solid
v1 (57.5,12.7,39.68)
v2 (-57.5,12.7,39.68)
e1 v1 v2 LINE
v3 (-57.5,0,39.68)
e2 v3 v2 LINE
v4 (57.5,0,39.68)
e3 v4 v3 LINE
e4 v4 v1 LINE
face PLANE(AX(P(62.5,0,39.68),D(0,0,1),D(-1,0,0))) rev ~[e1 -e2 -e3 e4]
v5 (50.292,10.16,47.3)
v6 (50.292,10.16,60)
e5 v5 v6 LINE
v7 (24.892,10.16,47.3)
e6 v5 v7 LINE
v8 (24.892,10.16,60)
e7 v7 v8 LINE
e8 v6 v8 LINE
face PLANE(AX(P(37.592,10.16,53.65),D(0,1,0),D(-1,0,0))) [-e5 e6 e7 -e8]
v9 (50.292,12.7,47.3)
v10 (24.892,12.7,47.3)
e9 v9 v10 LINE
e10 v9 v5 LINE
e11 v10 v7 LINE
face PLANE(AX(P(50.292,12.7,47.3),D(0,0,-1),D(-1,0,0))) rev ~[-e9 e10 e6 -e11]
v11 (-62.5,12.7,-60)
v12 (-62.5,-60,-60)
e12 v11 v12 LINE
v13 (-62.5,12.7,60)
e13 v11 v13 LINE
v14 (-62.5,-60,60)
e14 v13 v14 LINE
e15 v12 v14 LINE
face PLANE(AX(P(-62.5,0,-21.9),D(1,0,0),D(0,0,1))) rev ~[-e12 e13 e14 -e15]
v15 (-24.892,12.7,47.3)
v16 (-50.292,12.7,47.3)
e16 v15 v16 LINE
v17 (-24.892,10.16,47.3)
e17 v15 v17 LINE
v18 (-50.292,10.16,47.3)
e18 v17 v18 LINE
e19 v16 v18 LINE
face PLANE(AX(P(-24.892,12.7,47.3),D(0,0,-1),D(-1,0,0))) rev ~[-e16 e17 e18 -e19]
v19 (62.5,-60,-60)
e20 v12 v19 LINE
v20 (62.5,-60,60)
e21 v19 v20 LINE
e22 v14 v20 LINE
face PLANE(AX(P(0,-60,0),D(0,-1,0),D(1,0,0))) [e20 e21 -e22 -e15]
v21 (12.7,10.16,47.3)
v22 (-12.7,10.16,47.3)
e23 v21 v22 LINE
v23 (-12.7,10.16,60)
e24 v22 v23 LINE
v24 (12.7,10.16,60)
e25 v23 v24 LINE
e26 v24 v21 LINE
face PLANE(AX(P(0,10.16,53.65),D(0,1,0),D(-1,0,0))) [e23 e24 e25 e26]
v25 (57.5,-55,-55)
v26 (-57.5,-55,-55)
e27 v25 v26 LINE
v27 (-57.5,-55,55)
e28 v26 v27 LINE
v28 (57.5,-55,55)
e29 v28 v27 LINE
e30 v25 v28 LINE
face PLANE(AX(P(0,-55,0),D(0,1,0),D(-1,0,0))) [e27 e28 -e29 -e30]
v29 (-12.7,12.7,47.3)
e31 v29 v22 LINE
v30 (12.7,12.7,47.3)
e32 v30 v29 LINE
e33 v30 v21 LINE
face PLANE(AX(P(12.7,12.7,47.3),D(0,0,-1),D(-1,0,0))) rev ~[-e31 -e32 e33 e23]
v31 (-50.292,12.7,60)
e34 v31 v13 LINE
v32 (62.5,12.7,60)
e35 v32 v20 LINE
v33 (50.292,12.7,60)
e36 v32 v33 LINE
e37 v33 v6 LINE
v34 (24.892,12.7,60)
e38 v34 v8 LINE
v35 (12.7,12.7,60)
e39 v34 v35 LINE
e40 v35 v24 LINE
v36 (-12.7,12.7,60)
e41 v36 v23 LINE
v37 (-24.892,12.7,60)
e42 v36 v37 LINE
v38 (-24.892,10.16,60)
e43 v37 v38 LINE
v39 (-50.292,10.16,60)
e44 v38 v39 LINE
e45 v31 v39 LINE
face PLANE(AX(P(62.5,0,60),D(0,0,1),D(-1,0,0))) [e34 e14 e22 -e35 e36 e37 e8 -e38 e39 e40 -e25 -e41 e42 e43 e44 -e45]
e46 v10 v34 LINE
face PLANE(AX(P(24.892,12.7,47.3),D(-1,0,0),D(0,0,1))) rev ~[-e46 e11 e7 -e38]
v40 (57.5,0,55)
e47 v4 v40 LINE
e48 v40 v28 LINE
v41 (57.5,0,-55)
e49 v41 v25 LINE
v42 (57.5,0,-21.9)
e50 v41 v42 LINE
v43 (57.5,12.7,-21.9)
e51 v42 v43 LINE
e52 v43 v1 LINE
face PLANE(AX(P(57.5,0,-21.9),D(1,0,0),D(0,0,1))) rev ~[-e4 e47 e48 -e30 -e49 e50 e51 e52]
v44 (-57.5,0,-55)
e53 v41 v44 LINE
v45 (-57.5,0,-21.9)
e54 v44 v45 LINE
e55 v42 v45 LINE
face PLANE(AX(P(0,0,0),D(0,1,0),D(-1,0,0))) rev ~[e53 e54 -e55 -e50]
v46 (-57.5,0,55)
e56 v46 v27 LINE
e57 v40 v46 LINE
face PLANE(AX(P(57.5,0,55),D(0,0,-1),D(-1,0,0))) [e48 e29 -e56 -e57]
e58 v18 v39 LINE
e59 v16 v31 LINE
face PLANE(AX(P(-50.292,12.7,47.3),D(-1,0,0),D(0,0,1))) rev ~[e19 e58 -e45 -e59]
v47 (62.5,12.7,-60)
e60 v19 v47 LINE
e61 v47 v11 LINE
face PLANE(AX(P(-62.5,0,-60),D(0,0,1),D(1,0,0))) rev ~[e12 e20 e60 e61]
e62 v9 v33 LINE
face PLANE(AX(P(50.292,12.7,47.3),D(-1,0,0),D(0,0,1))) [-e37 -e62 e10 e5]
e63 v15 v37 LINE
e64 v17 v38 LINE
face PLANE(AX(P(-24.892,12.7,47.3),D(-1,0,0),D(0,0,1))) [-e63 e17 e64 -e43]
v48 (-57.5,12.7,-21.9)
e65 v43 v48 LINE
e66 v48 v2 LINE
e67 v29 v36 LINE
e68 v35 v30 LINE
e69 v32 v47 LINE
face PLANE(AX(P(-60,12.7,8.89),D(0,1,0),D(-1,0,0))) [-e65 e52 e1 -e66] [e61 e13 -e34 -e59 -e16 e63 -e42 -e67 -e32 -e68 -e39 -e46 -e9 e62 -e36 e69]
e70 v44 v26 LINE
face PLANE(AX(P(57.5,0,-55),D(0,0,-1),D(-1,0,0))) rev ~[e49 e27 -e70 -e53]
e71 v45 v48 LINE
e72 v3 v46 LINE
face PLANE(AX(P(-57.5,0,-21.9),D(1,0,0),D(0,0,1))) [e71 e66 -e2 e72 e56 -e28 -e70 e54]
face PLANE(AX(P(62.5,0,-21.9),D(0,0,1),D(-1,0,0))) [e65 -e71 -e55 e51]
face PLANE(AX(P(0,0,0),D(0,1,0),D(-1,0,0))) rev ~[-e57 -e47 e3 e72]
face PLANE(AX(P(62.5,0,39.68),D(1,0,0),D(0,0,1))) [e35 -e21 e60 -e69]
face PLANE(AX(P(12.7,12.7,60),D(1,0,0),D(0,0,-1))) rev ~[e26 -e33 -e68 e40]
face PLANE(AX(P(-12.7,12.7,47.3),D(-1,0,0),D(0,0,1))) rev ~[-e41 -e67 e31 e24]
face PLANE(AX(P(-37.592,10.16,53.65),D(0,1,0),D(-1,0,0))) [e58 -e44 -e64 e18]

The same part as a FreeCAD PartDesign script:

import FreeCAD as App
import Part
import Sketcher

doc = App.newDocument("Part")
body = doc.addObject("PartDesign::Body", "Body")

# Sketch on XZ plane
sketch1 = body.newObject("Sketcher::SketchObject", "Sketch")
sketch1.AttachmentSupport = (doc.getObject("XZ_Plane"), [""])
sketch1.MapMode = "FlatFace"
sketch1.addGeometry([
    Part.LineSegment(App.Vector(-62, 60, 0), App.Vector(-62, -60, 0)),
    Part.LineSegment(App.Vector(-62, -60, 0), App.Vector(62, -60, 0)),
    Part.LineSegment(App.Vector(62, -60, 0), App.Vector(62, 60, 0)),
    Part.LineSegment(App.Vector(62, 60, 0), App.Vector(-62, 60, 0)),
], False)
sketch1.addConstraint([
    Sketcher.Constraint("Coincident", 0, 2, 1, 1),
    Sketcher.Constraint("Coincident", 1, 2, 2, 1),
    Sketcher.Constraint("Coincident", 2, 2, 3, 1),
    Sketcher.Constraint("Coincident", 3, 2, 0, 1),
    Sketcher.Constraint("Vertical", 0),
    Sketcher.Constraint("Horizontal", 1),
    Sketcher.Constraint("Vertical", 2),
    Sketcher.Constraint("Horizontal", 3),
    Sketcher.Constraint("Symmetric", 0, 2, 2, 2, -1, 1),
    Sketcher.Constraint("DistanceX", 1, 1, 1, 2, 125.0),
    Sketcher.Constraint("DistanceY", 0, 2, 0, 1, 120.0),
])
pad1 = body.newObject("PartDesign::Pad", "Pad")
pad1.Profile = sketch1
pad1.Length = 60

# Sketch on XZ plane
sketch2 = body.newObject("Sketcher::SketchObject", "Sketch001")
sketch2.AttachmentSupport = (doc.getObject("XZ_Plane"), [""])
sketch2.MapMode = "FlatFace"
sketch2.addGeometry([
    Part.LineSegment(App.Vector(62, 60, 0), App.Vector(62, 40, 0)),  # 0
    Part.LineSegment(App.Vector(62, 40, 0), App.Vector(-62, 40, 0)),  # 1
    Part.LineSegment(App.Vector(-62, 40, 0), App.Vector(-62, 60, 0)),  # 2
    Part.LineSegment(App.Vector(-62, 60, 0), App.Vector(62, 60, 0)),  # 3
    Part.LineSegment(App.Vector(62, -22, 0), App.Vector(62, -60, 0)),  # 4
    Part.LineSegment(App.Vector(62, -60, 0), App.Vector(-62, -60, 0)),  # 5
    Part.LineSegment(App.Vector(-62, -60, 0), App.Vector(-62, -22, 0)),  # 6
    Part.LineSegment(App.Vector(-62, -22, 0), App.Vector(62, -22, 0)),  # 7
], False)
sketch2.addConstraint([
    Sketcher.Constraint("Coincident", 0, 2, 1, 1),
    Sketcher.Constraint("Coincident", 1, 2, 2, 1),
    Sketcher.Constraint("Coincident", 2, 2, 3, 1),
    Sketcher.Constraint("Coincident", 3, 2, 0, 1),
    Sketcher.Constraint("Coincident", 4, 2, 5, 1),
    Sketcher.Constraint("Coincident", 5, 2, 6, 1),
    Sketcher.Constraint("Coincident", 6, 2, 7, 1),
    Sketcher.Constraint("Coincident", 7, 2, 4, 1),
    Sketcher.Constraint("Vertical", 0),
    Sketcher.Constraint("Horizontal", 1),
    Sketcher.Constraint("Vertical", 2),
    Sketcher.Constraint("Horizontal", 3),
    Sketcher.Constraint("Vertical", 4),
    Sketcher.Constraint("Horizontal", 5),
    Sketcher.Constraint("Vertical", 6),
    Sketcher.Constraint("Horizontal", 7),
    Sketcher.Constraint("Symmetric", 2, 2, 4, 2, -1, 1),
    Sketcher.Constraint("Vertical", 3, 2, 4, 2),
    Sketcher.Constraint("Vertical", 2, 2, 5, 2),
    Sketcher.Constraint("DistanceX", 1, 2, 1, 1, 125.0),
    Sketcher.Constraint("DistanceY", 4, 2, 4, 1, 38.1),
    Sketcher.Constraint("DistanceY", -1, 1, 2, 2, 60.0),
    Sketcher.Constraint("DistanceY", 0, 2, 0, 1, 20.32),
])
pad2 = body.newObject("PartDesign::Pad", "Pad001")
pad2.Profile = sketch2
pad2.Length = 12.7
pad2.Reversed = True

# Sketch on XZ plane
sketch3 = body.newObject("Sketcher::SketchObject", "Sketch002")
sketch3.AttachmentSupport = (doc.getObject("XZ_Plane"), [""])
sketch3.MapMode = "FlatFace"
sketch3.addGeometry([
    Part.LineSegment(App.Vector(58, 55, 0), App.Vector(58, -55, 0)),
    Part.LineSegment(App.Vector(58, -55, 0), App.Vector(-58, -55, 0)),
    Part.LineSegment(App.Vector(-58, -55, 0), App.Vector(-58, 55, 0)),
    Part.LineSegment(App.Vector(-58, 55, 0), App.Vector(58, 55, 0)),
], False)
sketch3.addConstraint([
    Sketcher.Constraint("Coincident", 0, 2, 1, 1),
    Sketcher.Constraint("Coincident", 1, 2, 2, 1),
    Sketcher.Constraint("Coincident", 2, 2, 3, 1),
    Sketcher.Constraint("Coincident", 3, 2, 0, 1),
    Sketcher.Constraint("Vertical", 0),
    Sketcher.Constraint("Horizontal", 1),
    Sketcher.Constraint("Vertical", 2),
    Sketcher.Constraint("Horizontal", 3),
    Sketcher.Constraint("Symmetric", 0, 2, 2, 2, -1, 1),
    Sketcher.Constraint("DistanceX", 1, 2, 1, 1, 115.0),
    Sketcher.Constraint("DistanceY", 0, 2, 0, 1, 110.0),
])
pocket1 = body.newObject("PartDesign::Pocket", "Pocket")
pocket1.Profile = sketch3
pocket1.Length = 55
pocket1.Reversed = True

# Sketch on XZ plane
sketch4 = body.newObject("Sketcher::SketchObject", "Sketch003")
sketch4.AttachmentSupport = (doc.getObject("XZ_Plane"), [""])
sketch4.MapMode = "FlatFace"
sketch4.AttachmentOffset = App.Placement(App.Vector(0, 0, -12.7), App.Rotation())
sketch4.addGeometry([
    Part.LineSegment(App.Vector(50, 60, 0), App.Vector(50, 47, 0)),  # 0
    Part.LineSegment(App.Vector(50, 47, 0), App.Vector(25, 47, 0)),  # 1
    Part.LineSegment(App.Vector(25, 47, 0), App.Vector(25, 60, 0)),  # 2
    Part.LineSegment(App.Vector(25, 60, 0), App.Vector(50, 60, 0)),  # 3
    Part.LineSegment(App.Vector(-13, 60, 0), App.Vector(13, 60, 0)),  # 4
    Part.LineSegment(App.Vector(13, 60, 0), App.Vector(13, 47, 0)),  # 5
    Part.LineSegment(App.Vector(13, 47, 0), App.Vector(-13, 47, 0)),  # 6
    Part.LineSegment(App.Vector(-13, 47, 0), App.Vector(-13, 60, 0)),  # 7
    Part.LineSegment(App.Vector(-25, 60, 0), App.Vector(-25, 47, 0)),  # 8
    Part.LineSegment(App.Vector(-25, 47, 0), App.Vector(-50, 47, 0)),  # 9
    Part.LineSegment(App.Vector(-50, 47, 0), App.Vector(-50, 60, 0)),  # 10
    Part.LineSegment(App.Vector(-50, 60, 0), App.Vector(-25, 60, 0)),  # 11
], False)
sketch4.addConstraint([
    Sketcher.Constraint("Coincident", 0, 2, 1, 1),
    Sketcher.Constraint("Coincident", 1, 2, 2, 1),
    Sketcher.Constraint("Coincident", 2, 2, 3, 1),
    Sketcher.Constraint("Coincident", 3, 2, 0, 1),
    Sketcher.Constraint("Coincident", 4, 2, 5, 1),
    Sketcher.Constraint("Coincident", 5, 2, 6, 1),
    Sketcher.Constraint("Coincident", 6, 2, 7, 1),
    Sketcher.Constraint("Coincident", 7, 2, 4, 1),
    Sketcher.Constraint("Coincident", 8, 2, 9, 1),
    Sketcher.Constraint("Coincident", 9, 2, 10, 1),
    Sketcher.Constraint("Coincident", 10, 2, 11, 1),
    Sketcher.Constraint("Coincident", 11, 2, 8, 1),
    Sketcher.Constraint("Vertical", 0),
    Sketcher.Constraint("Horizontal", 1),
    Sketcher.Constraint("Vertical", 2),
    Sketcher.Constraint("Horizontal", 3),
    Sketcher.Constraint("Horizontal", 4),
    Sketcher.Constraint("Vertical", 5),
    Sketcher.Constraint("Horizontal", 6),
    Sketcher.Constraint("Vertical", 7),
    Sketcher.Constraint("Vertical", 8),
    Sketcher.Constraint("Horizontal", 9),
    Sketcher.Constraint("Vertical", 10),
    Sketcher.Constraint("Horizontal", 11),
    Sketcher.Constraint("Symmetric", 1, 2, 8, 2, -2),
    Sketcher.Constraint("Symmetric", 3, 2, 10, 2, -2),
    Sketcher.Constraint("Horizontal", 3, 2, 4, 2),
    Sketcher.Constraint("Horizontal", 1, 2, 5, 2),
    Sketcher.Constraint("Equal", 3, 4),
    Sketcher.Constraint("DistanceX", 1, 2, 1, 1, 25.4),
    Sketcher.Constraint("DistanceY", 0, 2, 0, 1, 12.7),
    Sketcher.Constraint("DistanceY", -1, 1, 2, 2, 60.0),
    Sketcher.Constraint("DistanceX", -1, 1, 4, 2, 12.7),
    Sketcher.Constraint("DistanceX", -1, 1, 0, 2, 50.292),
])
pocket2 = body.newObject("PartDesign::Pocket", "Pocket001")
pocket2.Profile = sketch4
pocket2.Length = 2.54
pocket2.Reversed = True

# Sketch on XZ plane
sketch5 = body.newObject("Sketcher::SketchObject", "Sketch004")
sketch5.AttachmentSupport = (doc.getObject("XZ_Plane"), [""])
sketch5.MapMode = "FlatFace"
sketch5.addGeometry([
    Part.LineSegment(App.Vector(-58, 40, 0), App.Vector(-58, -22, 0)),  # 0
    Part.LineSegment(App.Vector(-58, -22, 0), App.Vector(-62, -22, 0)),  # 1
    Part.LineSegment(App.Vector(-62, -22, 0), App.Vector(-62, 40, 0)),  # 2
    Part.LineSegment(App.Vector(-62, 40, 0), App.Vector(-58, 40, 0)),  # 3
    Part.LineSegment(App.Vector(62, 40, 0), App.Vector(62, -22, 0)),  # 4
    Part.LineSegment(App.Vector(62, -22, 0), App.Vector(58, -22, 0)),  # 5
    Part.LineSegment(App.Vector(58, -22, 0), App.Vector(58, 40, 0)),  # 6
    Part.LineSegment(App.Vector(58, 40, 0), App.Vector(62, 40, 0)),  # 7
], False)
sketch5.addConstraint([
    Sketcher.Constraint("Coincident", 0, 2, 1, 1),
    Sketcher.Constraint("Coincident", 1, 2, 2, 1),
    Sketcher.Constraint("Coincident", 2, 2, 3, 1),
    Sketcher.Constraint("Coincident", 3, 2, 0, 1),
    Sketcher.Constraint("Coincident", 4, 2, 5, 1),
    Sketcher.Constraint("Coincident", 5, 2, 6, 1),
    Sketcher.Constraint("Coincident", 6, 2, 7, 1),
    Sketcher.Constraint("Coincident", 7, 2, 4, 1),
    Sketcher.Constraint("Vertical", 0),
    Sketcher.Constraint("Horizontal", 1),
    Sketcher.Constraint("Vertical", 2),
    Sketcher.Constraint("Horizontal", 3),
    Sketcher.Constraint("Vertical", 4),
    Sketcher.Constraint("Horizontal", 5),
    Sketcher.Constraint("Vertical", 6),
    Sketcher.Constraint("Horizontal", 7),
    Sketcher.Constraint("Symmetric", 1, 2, 4, 2, -2),
    Sketcher.Constraint("Symmetric", 3, 2, 6, 2, -2),
    Sketcher.Constraint("DistanceX", 1, 2, 1, 1, 5.0),
    Sketcher.Constraint("DistanceX", 0, 2, 4, 2, 120.0),
    Sketcher.Constraint("DistanceY", 0, 2, 0, 1, 61.58),
    Sketcher.Constraint("DistanceY", 0, 2, -1, 1, 21.9),
])
pad3 = body.newObject("PartDesign::Pad", "Pad002")
pad3.Profile = sketch5
pad3.Length = 12.7
pad3.Reversed = True

doc.recompute()
